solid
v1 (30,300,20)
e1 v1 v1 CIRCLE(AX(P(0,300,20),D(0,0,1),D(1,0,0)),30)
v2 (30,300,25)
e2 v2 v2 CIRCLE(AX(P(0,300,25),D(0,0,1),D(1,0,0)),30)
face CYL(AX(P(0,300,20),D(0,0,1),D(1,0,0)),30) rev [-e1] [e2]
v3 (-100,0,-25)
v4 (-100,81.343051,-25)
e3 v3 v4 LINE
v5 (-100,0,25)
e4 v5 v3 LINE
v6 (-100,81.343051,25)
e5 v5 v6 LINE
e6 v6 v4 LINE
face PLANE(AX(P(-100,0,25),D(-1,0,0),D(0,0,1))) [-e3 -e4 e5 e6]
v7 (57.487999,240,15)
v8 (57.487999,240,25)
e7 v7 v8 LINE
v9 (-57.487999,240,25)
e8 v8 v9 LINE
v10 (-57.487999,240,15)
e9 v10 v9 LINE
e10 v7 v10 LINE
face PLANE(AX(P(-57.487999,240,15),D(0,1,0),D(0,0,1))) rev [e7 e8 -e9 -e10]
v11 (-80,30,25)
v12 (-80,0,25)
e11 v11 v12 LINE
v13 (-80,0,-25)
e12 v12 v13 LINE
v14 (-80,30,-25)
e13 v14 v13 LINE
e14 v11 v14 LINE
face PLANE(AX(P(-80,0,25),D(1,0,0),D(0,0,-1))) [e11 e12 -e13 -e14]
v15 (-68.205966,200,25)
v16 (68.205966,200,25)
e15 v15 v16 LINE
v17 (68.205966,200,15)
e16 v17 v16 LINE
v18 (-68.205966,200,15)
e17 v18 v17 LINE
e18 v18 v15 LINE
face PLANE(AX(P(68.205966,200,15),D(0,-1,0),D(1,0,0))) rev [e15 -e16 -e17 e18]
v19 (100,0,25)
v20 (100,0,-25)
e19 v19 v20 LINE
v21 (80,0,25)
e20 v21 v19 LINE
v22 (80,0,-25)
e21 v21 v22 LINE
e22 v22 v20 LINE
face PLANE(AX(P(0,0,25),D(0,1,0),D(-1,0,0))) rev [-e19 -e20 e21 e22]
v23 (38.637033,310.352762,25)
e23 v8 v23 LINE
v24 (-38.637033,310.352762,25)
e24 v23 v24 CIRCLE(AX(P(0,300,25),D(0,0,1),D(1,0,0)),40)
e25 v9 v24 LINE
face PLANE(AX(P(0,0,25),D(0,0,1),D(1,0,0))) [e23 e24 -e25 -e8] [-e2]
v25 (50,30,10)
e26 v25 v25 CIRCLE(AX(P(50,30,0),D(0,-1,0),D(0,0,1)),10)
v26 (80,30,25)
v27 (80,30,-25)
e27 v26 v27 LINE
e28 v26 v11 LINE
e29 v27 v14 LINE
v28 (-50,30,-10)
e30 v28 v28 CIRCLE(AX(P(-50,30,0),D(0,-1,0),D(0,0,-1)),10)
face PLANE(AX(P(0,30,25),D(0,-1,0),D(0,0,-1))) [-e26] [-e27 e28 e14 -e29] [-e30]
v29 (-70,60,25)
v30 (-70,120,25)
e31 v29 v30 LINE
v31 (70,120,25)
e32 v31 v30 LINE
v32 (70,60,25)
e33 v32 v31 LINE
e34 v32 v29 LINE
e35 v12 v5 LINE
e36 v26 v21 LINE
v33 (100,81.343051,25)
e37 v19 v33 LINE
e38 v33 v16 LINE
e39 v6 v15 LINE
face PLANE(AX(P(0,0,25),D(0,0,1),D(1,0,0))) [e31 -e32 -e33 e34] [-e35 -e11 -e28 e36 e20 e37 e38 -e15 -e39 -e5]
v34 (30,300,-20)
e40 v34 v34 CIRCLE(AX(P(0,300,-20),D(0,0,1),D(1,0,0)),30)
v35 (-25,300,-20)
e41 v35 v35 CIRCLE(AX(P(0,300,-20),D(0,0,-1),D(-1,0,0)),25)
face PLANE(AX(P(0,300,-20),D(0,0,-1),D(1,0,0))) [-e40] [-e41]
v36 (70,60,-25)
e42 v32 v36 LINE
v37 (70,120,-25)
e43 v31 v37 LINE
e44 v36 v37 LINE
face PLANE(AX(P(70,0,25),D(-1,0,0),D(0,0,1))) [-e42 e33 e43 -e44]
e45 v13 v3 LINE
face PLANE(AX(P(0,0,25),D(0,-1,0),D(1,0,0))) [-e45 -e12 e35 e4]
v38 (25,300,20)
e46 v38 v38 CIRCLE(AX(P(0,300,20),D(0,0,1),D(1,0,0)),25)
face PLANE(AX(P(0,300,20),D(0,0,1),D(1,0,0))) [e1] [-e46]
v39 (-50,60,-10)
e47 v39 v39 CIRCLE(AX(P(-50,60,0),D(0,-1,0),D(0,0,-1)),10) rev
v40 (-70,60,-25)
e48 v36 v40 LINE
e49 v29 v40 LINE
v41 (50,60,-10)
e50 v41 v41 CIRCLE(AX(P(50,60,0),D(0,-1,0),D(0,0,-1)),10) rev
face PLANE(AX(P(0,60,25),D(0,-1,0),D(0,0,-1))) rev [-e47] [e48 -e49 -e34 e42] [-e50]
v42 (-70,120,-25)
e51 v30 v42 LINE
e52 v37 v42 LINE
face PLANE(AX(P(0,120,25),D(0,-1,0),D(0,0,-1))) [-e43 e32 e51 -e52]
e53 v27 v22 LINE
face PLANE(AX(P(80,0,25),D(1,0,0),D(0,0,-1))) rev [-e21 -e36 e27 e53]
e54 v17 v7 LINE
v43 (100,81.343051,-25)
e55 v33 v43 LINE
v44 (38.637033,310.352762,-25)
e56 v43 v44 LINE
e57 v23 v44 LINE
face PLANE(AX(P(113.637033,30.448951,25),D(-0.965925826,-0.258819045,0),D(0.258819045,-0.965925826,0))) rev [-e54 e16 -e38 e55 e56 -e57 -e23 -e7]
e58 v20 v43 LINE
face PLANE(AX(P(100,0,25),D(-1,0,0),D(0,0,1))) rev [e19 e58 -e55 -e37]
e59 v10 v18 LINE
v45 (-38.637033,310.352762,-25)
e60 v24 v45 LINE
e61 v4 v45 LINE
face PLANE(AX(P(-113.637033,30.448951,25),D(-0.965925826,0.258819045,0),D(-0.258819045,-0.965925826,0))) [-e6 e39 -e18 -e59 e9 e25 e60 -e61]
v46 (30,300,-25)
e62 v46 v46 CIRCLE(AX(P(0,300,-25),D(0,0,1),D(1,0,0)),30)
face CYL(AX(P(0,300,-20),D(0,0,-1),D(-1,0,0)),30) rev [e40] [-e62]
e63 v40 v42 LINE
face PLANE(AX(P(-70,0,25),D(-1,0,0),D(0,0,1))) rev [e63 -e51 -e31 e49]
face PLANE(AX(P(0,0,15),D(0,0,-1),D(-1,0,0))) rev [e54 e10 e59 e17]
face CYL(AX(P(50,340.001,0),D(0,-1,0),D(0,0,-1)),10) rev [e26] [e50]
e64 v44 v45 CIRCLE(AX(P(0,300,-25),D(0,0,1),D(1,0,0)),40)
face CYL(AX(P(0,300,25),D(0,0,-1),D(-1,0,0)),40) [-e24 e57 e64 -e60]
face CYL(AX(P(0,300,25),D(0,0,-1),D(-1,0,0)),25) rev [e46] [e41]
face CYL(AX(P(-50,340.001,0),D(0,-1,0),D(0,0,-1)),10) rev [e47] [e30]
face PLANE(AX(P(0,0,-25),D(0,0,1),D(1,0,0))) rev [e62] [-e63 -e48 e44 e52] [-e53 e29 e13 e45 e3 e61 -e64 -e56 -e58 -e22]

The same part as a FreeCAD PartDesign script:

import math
import FreeCAD as App
import Part
import Sketcher
Q = App.Units.Quantity

doc = App.newDocument("Part")
params = doc.addObject("Spreadsheet::Sheet", "Params")
for row, (alias, value) in enumerate([
    ("sketch1_diameter", "50 mm"),
    ("sketch1_radius", "40 mm"),
    ("sketch1_width", "20 mm"),
    ("sketch1_width2", "160 mm"),
    ("sketch1_width3", "140 mm"),
    ("pad1_length", "50 mm"),
    ("sketch2_diameter", "60 mm"),
    ("pocket1_length", "5 mm"),
    ("pocket2_length", "10 mm"),
    ("sketch4_diameter", "20 mm"),
    ("sketch5_diameter", "20 mm"),
], start=1):
    params.set(f"A{row}", alias)
    params.set(f"B{row}", "=" + value)
    params.setAlias(f"B{row}", alias)

body = doc.addObject("PartDesign::Body", "Body")

sketch1 = body.newObject("Sketcher::SketchObject", "Sketch")
sketch1.AttachmentSupport = (doc.getObject("XY_Plane"), [""])
sketch1.MapMode = "FlatFace"
sketch1.addGeometry([
    Part.LineSegment(App.Vector(100, 81, 0), App.Vector(39, 310, 0)),
    Part.ArcOfCircle(Part.Circle(App.Vector(0, 300, 0), App.Vector(0, 0, 1), 40), math.radians(15), math.radians(165)),
    Part.LineSegment(App.Vector(-39, 310, 0), App.Vector(-100, 81, 0)),
    Part.LineSegment(App.Vector(-100, 81, 0), App.Vector(-100, 0, 0)),
    Part.LineSegment(App.Vector(-100, 0, 0), App.Vector(-80, 0, 0)),
    Part.LineSegment(App.Vector(-80, 0, 0), App.Vector(-80, 30, 0)),
    Part.LineSegment(App.Vector(-80, 30, 0), App.Vector(80, 30, 0)),
    Part.LineSegment(App.Vector(80, 30, 0), App.Vector(80, 0, 0)),
    Part.LineSegment(App.Vector(80, 0, 0), App.Vector(100, 0, 0)),
    Part.LineSegment(App.Vector(100, 0, 0), App.Vector(100, 81, 0)),
    Part.LineSegment(App.Vector(70, 60, 0), App.Vector(-70, 60, 0)),
    Part.LineSegment(App.Vector(-70, 60, 0), App.Vector(-70, 120, 0)),
    Part.LineSegment(App.Vector(-70, 120, 0), App.Vector(70, 120, 0)),
    Part.LineSegment(App.Vector(70, 120, 0), App.Vector(70, 60, 0)),
    Part.Circle(App.Vector(0, 300, 0), App.Vector(0, 0, 1), 25),
], False)
sketch1.addConstraint([
    Sketcher.Constraint("Tangent", 0, 2, 1, 1),
    Sketcher.Constraint("Tangent", 1, 2, 2, 1),
    Sketcher.Constraint("Coincident", 2, 2, 3, 1),
    Sketcher.Constraint("Coincident", 3, 2, 4, 1),
    Sketcher.Constraint("Coincident", 4, 2, 5, 1),
    Sketcher.Constraint("Coincident", 5, 2, 6, 1),
    Sketcher.Constraint("Coincident", 6, 2, 7, 1),
    Sketcher.Constraint("Coincident", 7, 2, 8, 1),
    Sketcher.Constraint("Coincident", 8, 2, 9, 1),
    Sketcher.Constraint("Coincident", 9, 2, 0, 1),
    Sketcher.Constraint("Coincident", 10, 2, 11, 1),
    Sketcher.Constraint("Coincident", 11, 2, 12, 1),
    Sketcher.Constraint("Coincident", 12, 2, 13, 1),
    Sketcher.Constraint("Coincident", 13, 2, 10, 1),
    Sketcher.Constraint("Vertical", 3),
    Sketcher.Constraint("Horizontal", 4),
    Sketcher.Constraint("Vertical", 5),
    Sketcher.Constraint("Horizontal", 6),
    Sketcher.Constraint("Vertical", 7),
    Sketcher.Constraint("Horizontal", 8),
    Sketcher.Constraint("Vertical", 9),
    Sketcher.Constraint("Horizontal", 10),
    Sketcher.Constraint("Vertical", 11),
    Sketcher.Constraint("Horizontal", 12),
    Sketcher.Constraint("Vertical", 13),
    Sketcher.Constraint("Coincident", 14, 3, 1, 3),
    Sketcher.Constraint("Symmetric", 4, 2, 7, 2, -1, 1),
    Sketcher.Constraint("Symmetric", 0, 2, 1, 2, -2),
    Sketcher.Constraint("Symmetric", 3, 2, 8, 2, -2),
    Sketcher.Constraint("Diameter", 14, Q("50 mm")),
    Sketcher.Constraint("Radius", 1, Q("40 mm")),
    Sketcher.Constraint("DistanceX", 4, 1, 4, 2, Q("20 mm")),
    Sketcher.Constraint("DistanceX", 6, 1, 6, 2, Q("160 mm")),
    Sketcher.Constraint("DistanceX", 10, 2, 10, 1, Q("140 mm")),
    Sketcher.Constraint("DistanceY", 5, 1, 5, 2, Q("30 mm")),
    Sketcher.Constraint("DistanceY", 11, 1, 11, 2, Q("60 mm")),
    Sketcher.Constraint("Angle", 0, Q("105 deg")),
    Sketcher.Constraint("DistanceY", -1, 1, 1, 3, Q("300 mm")),
    Sketcher.Constraint("DistanceX", 10, 2, -1, 1, Q("70 mm")),
    Sketcher.Constraint("DistanceY", -1, 1, 10, 2, Q("60 mm")),
])
sketch1.setExpression("Constraints[29]", "Params.sketch1_diameter")
sketch1.setExpression("Constraints[30]", "Params.sketch1_radius")
sketch1.setExpression("Constraints[31]", "Params.sketch1_width")
sketch1.setExpression("Constraints[32]", "Params.sketch1_width2")
sketch1.setExpression("Constraints[33]", "Params.sketch1_width3")
pad1 = body.newObject("PartDesign::Pad", "Pad")
pad1.Profile = sketch1
pad1.setExpression("Length", "Params.pad1_length")
pad1.Midplane = True

sketch2 = body.newObject("Sketcher::SketchObject", "Sketch001")
sketch2.AttachmentSupport = (doc.getObject("XY_Plane"), [""])
sketch2.MapMode = "FlatFace"
sketch2.AttachmentOffset = App.Placement(App.Vector(0, 0, 25), App.Rotation())
sketch2.addGeometry(Part.Circle(App.Vector(0, 300, 0), App.Vector(0, 0, 1), 30), False)
sketch2.addConstraint([
    Sketcher.Constraint("PointOnObject", 0, 3, -2),
    Sketcher.Constraint("Diameter", 0, Q("60 mm")),
    Sketcher.Constraint("DistanceY", -1, 1, 0, 3, Q("300 mm")),
])
sketch2.setExpression("Constraints[1]", "Params.sketch2_diameter")
pocket1 = body.newObject("PartDesign::Pocket", "Pocket")
pocket1.Profile = sketch2
pocket1.setExpression("Length", "Params.pocket1_length")
doc.recompute()

mirrored = body.newObject("PartDesign::Mirrored", "Mirrored")
mirrored.Originals = [pocket1]
mirrored.MirrorPlane = (doc.getObject("XY_Plane"), [""])
body.Tip = mirrored

sketch3 = body.newObject("Sketcher::SketchObject", "Sketch002")
sketch3.AttachmentSupport = (doc.getObject("XY_Plane"), [""])
sketch3.MapMode = "FlatFace"
sketch3.AttachmentOffset = App.Placement(App.Vector(0, 0, 25), App.Rotation())
sketch3.addGeometry([
    Part.LineSegment(App.Vector(57, 240, 0), App.Vector(-57, 240, 0)),
    Part.LineSegment(App.Vector(-57, 240, 0), App.Vector(-68, 200, 0)),
    Part.LineSegment(App.Vector(-68, 200, 0), App.Vector(68, 200, 0)),
    Part.LineSegment(App.Vector(68, 200, 0), App.Vector(57, 240, 0)),
], False)
sketch3.addConstraint([
    Sketcher.Constraint("Coincident", 0, 2, 1, 1),
    Sketcher.Constraint("Coincident", 1, 2, 2, 1),
    Sketcher.Constraint("Coincident", 2, 2, 3, 1),
    Sketcher.Constraint("Coincident", 3, 2, 0, 1),
    Sketcher.Constraint("Horizontal", 0),
    Sketcher.Constraint("Horizontal", 2),
    Sketcher.Constraint("Equal", 1, 3),
    Sketcher.Constraint("Angle", 1, Q("-105 deg")),
    Sketcher.Constraint("DistanceY", -1, 1, 0, 2, Q("240 mm")),
    Sketcher.Constraint("DistanceY", -1, 1, 1, 2, Q("200 mm")),
    Sketcher.Constraint("DistanceX", 0, 2, -1, 1, Q("57.487999 mm")),
    Sketcher.Constraint("DistanceX", -1, 1, 3, 2, Q("57.487999 mm")),
])
pocket2 = body.newObject("PartDesign::Pocket", "Pocket001")
pocket2.Profile = sketch3
pocket2.setExpression("Length", "Params.pocket2_length")

sketch4 = body.newObject("Sketcher::SketchObject", "Sketch003")
sketch4.AttachmentSupport = (doc.getObject("XZ_Plane"), [""])
sketch4.MapMode = "FlatFace"
sketch4.AttachmentOffset = App.Placement(App.Vector(0, 0, -30), App.Rotation())
sketch4.addGeometry(Part.Circle(App.Vector(-50, 0, 0), App.Vector(0, 0, 1), 10), False)
sketch4.addConstraint([
    Sketcher.Constraint("PointOnObject", 0, 3, -1),
    Sketcher.Constraint("Diameter", 0, Q("20 mm")),
    Sketcher.Constraint("DistanceX", 0, 3, -1, 1, Q("50 mm")),
])
sketch4.setExpression("Constraints[1]", "Params.sketch4_diameter")
pocket3 = body.newObject("PartDesign::Pocket", "Pocket002")
pocket3.Profile = sketch4
pocket3.Type = "UpToFirst"

sketch5 = body.newObject("Sketcher::SketchObject", "Sketch004")
sketch5.AttachmentSupport = (doc.getObject("XZ_Plane"), [""])
sketch5.MapMode = "FlatFace"
sketch5.AttachmentOffset = App.Placement(App.Vector(0, 0, -30), App.Rotation())
sketch5.addGeometry(Part.Circle(App.Vector(50, 0, 0), App.Vector(0, 0, 1), 10), False)
sketch5.addConstraint([
    Sketcher.Constraint("PointOnObject", 0, 3, -1),
    Sketcher.Constraint("Diameter", 0, Q("20 mm")),
    Sketcher.Constraint("DistanceX", -1, 1, 0, 3, Q("50 mm")),
])
sketch5.setExpression("Constraints[1]", "Params.sketch5_diameter")
pocket4 = body.newObject("PartDesign::Pocket", "Pocket003")
pocket4.Profile = sketch5
pocket4.Type = "UpToFirst"

doc.recompute()
